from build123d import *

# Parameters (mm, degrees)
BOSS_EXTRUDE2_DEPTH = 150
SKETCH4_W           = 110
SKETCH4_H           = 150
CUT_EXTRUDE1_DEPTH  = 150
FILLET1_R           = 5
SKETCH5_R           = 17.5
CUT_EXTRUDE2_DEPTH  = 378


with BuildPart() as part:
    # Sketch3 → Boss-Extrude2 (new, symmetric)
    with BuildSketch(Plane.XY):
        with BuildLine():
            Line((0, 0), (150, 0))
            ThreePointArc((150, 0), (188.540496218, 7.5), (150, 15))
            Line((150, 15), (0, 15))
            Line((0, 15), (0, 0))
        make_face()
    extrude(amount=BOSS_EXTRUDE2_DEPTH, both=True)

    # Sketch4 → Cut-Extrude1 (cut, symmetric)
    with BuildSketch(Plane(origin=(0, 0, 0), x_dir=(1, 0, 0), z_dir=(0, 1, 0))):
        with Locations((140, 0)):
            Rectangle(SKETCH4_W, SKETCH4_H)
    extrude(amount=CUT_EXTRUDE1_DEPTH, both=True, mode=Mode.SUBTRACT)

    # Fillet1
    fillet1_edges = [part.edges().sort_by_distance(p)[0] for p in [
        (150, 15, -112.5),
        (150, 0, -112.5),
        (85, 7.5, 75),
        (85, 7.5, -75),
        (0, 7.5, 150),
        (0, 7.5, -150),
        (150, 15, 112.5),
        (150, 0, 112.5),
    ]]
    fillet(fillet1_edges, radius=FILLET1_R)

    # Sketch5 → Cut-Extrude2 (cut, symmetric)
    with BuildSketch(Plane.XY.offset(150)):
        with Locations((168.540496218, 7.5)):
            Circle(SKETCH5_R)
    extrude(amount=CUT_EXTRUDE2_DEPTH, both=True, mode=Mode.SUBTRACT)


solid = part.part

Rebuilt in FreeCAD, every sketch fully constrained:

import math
import FreeCAD as App
import Part
import Sketcher
from FreeCAD import Vector
Q = App.Units.Quantity


def edges_at(feature, points):
    """Names of the edges that pass closest to the given points."""
    edges = feature.Shape.Edges
    near = lambda p: min(range(len(edges)), key=lambda i: edges[i].distToShape(Part.Vertex(*p))[0])
    return sorted({f"Edge{near(p) + 1}" for p in points})

doc = App.newDocument("Part")
body = doc.addObject("PartDesign::Body", "Body")

sketch1 = body.newObject("Sketcher::SketchObject", "Sketch")
sketch1.AttachmentSupport = (doc.getObject("XY_Plane"), [""])
sketch1.MapMode = "FlatFace"
sketch1.addGeometry([
    Part.LineSegment(Vector(0, 0, 0), Vector(150, 0, 0)),
    Part.ArcOfCircle(Part.Circle(Vector(169, 8, 0), Vector(0, 0, 1), 20), math.radians(-158), math.radians(158)),
    Part.LineSegment(Vector(150, 15, 0), Vector(0, 15, 0)),
    Part.LineSegment(Vector(0, 15, 0), Vector(0, 0, 0)),
], False)
sketch1.addConstraint([
    Sketcher.Constraint("Coincident", 0, 2, 1, 1),
    Sketcher.Constraint("Coincident", 1, 2, 2, 1),
    Sketcher.Constraint("Coincident", 2, 2, 3, 1),
    Sketcher.Constraint("Coincident", 3, 2, 0, 1),
    Sketcher.Constraint("Horizontal", 0),
    Sketcher.Constraint("Horizontal", 2),
    Sketcher.Constraint("Vertical", 3),
    Sketcher.Constraint("Coincident", 3, 2, -1, 1),
    Sketcher.Constraint("Vertical", 0, 2, 1, 2),
    Sketcher.Constraint("Radius", 1, Q("20 mm")),
    Sketcher.Constraint("DistanceX", 0, 1, 0, 2, Q("150 mm")),
    Sketcher.Constraint("DistanceY", 3, 2, 3, 1, Q("15 mm")),
])
pad1 = body.newObject("PartDesign::Pad", "Pad")
pad1.Profile = sketch1
pad1.Length = 300
pad1.Midplane = True

sketch2 = body.newObject("Sketcher::SketchObject", "Sketch001")
sketch2.AttachmentSupport = (doc.getObject("XZ_Plane"), [""])
sketch2.MapMode = "FlatFace"
sketch2.addGeometry([
    Part.LineSegment(Vector(85, -75, 0), Vector(85, 75, 0)),
    Part.LineSegment(Vector(85, 75, 0), Vector(195, 75, 0)),
    Part.LineSegment(Vector(195, 75, 0), Vector(195, -75, 0)),
    Part.LineSegment(Vector(195, -75, 0), Vector(85, -75, 0)),
], False)
sketch2.addConstraint([
    Sketcher.Constraint("Coincident", 0, 2, 1, 1),
    Sketcher.Constraint("Coincident", 1, 2, 2, 1),
    Sketcher.Constraint("Coincident", 2, 2, 3, 1),
    Sketcher.Constraint("Coincident", 3, 2, 0, 1),
    Sketcher.Constraint("Vertical", 0),
    Sketcher.Constraint("Horizontal", 1),
    Sketcher.Constraint("Vertical", 2),
    Sketcher.Constraint("Horizontal", 3),
    Sketcher.Constraint("DistanceX", 1, 1, 1, 2, Q("110 mm")),
    Sketcher.Constraint("DistanceY", 0, 1, 0, 2, Q("150 mm")),
    Sketcher.Constraint("DistanceX", -1, 1, 0, 2, Q("85 mm")),
    Sketcher.Constraint("DistanceY", -1, 1, 0, 2, Q("75 mm")),
])
pocket1 = body.newObject("PartDesign::Pocket", "Pocket")
pocket1.Profile = sketch2
pocket1.Length = 300
pocket1.Midplane = True
doc.recompute()

fillet = body.newObject("PartDesign::Fillet", "Fillet")
fillet.Base = (pocket1, edges_at(pocket1, [
    (150, 15, -112.5),
    (150, 0, -112.5),
    (85, 7.5, 75),
    (85, 7.5, -75),
    (0, 7.5, 150),
    (0, 7.5, -150),
    (150, 15, 112.5),
    (150, 0, 112.5),
]))
fillet.Radius = 5

sketch3 = body.newObject("Sketcher::SketchObject", "Sketch002")
sketch3.AttachmentSupport = (doc.getObject("XY_Plane"), [""])
sketch3.MapMode = "FlatFace"
sketch3.AttachmentOffset = App.Placement(Vector(0, 0, 150), App.Rotation())
sketch3.addGeometry(Part.Circle(Vector(169, 8, 0), Vector(0, 0, 1), 18), False)
sketch3.addConstraint([
    Sketcher.Constraint("Diameter", 0, Q("35 mm")),
    Sketcher.Constraint("DistanceY", -1, 1, 0, 3, Q("7.5 mm")),
    Sketcher.Constraint("DistanceX", -1, 1, 0, 3, Q("168.540496 mm")),
])
pocket2 = body.newObject("PartDesign::Pocket", "Pocket001")
pocket2.Profile = sketch3
pocket2.Length = 756
pocket2.Midplane = True

doc.recompute()
